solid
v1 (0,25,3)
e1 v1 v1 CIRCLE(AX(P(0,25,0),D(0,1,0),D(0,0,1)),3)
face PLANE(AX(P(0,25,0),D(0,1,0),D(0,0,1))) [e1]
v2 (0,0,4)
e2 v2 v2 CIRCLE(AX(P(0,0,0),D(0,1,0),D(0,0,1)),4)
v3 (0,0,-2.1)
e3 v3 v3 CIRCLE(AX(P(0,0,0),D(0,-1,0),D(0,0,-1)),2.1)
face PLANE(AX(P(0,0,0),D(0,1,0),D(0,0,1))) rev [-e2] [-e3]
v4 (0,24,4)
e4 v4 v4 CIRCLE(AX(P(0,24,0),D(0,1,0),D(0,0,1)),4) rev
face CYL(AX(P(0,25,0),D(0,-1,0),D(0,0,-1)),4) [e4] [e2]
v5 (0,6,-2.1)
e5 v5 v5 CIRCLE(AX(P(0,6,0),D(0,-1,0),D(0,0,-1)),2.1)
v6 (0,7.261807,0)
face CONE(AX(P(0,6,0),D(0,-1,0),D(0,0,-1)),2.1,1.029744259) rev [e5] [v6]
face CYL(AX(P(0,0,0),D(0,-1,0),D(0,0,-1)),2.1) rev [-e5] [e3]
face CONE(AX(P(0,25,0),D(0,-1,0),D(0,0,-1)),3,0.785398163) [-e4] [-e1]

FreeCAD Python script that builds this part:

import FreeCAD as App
import Part
import Sketcher
from FreeCAD import Vector
Q = App.Units.Quantity


def edges_at(feature, points):
    """Names of the edges that pass closest to the given points."""
    edges = feature.Shape.Edges
    near = lambda p: min(range(len(edges)), key=lambda i: edges[i].distToShape(Part.Vertex(*p))[0])
    return sorted({f"Edge{near(p) + 1}" for p in points})

doc = App.newDocument("Part")
body = doc.addObject("PartDesign::Body", "Body")

sketch1 = doc.addObject("Sketcher::SketchObject", "Sketch")
body.addObject(sketch1)
sketch1.AttachmentSupport = (doc.XZ_Plane, [""])
sketch1.MapMode = "FlatFace"
sketch1.addGeometry(Part.Circle(Vector(0, 0, 0), Vector(0, 0, 1), 4), False)
sketch1.addConstraint([
    Sketcher.Constraint("Coincident", 0, 3, -1, 1),
    Sketcher.Constraint("Diameter", 0, Q("8 mm")),
])
pad1 = doc.addObject("PartDesign::Pad", "Pad")
body.addObject(pad1)
pad1.Profile = sketch1
pad1.Length = 25
pad1.Reversed = True
doc.recompute()

chamfer = doc.addObject("PartDesign::Chamfer", "Chamfer")
body.addObject(chamfer)
chamfer.Base = (pad1, edges_at(pad1, [(-4, 25, 0)]))
chamfer.Size = 1

sketch2 = doc.addObject("Sketcher::SketchObject", "Sketch001")
body.addObject(sketch2)
sketch2.AttachmentSupport = (doc.XZ_Plane, [""])
sketch2.MapMode = "FlatFace"
sketch2.addGeometry(Part.Circle(Vector(0, 0, 0), Vector(0, 0, 1), 2.1), False)
sketch2.addConstraint([
    Sketcher.Constraint("Coincident", 0, 3, -1, 1),
    Sketcher.Constraint("Diameter", 0, Q("4.2 mm")),
])
doc.recompute()
hole = doc.addObject("PartDesign::Hole", "Hole")
body.addObject(hole)
hole.Profile = sketch2
hole.ThreadType = "None"
hole.Diameter = 4.2
hole.DepthType = "Dimension"
hole.Depth = 6
hole.DrillPoint = "Angled"
hole.DrillPointAngle = 118

doc.recompute()
